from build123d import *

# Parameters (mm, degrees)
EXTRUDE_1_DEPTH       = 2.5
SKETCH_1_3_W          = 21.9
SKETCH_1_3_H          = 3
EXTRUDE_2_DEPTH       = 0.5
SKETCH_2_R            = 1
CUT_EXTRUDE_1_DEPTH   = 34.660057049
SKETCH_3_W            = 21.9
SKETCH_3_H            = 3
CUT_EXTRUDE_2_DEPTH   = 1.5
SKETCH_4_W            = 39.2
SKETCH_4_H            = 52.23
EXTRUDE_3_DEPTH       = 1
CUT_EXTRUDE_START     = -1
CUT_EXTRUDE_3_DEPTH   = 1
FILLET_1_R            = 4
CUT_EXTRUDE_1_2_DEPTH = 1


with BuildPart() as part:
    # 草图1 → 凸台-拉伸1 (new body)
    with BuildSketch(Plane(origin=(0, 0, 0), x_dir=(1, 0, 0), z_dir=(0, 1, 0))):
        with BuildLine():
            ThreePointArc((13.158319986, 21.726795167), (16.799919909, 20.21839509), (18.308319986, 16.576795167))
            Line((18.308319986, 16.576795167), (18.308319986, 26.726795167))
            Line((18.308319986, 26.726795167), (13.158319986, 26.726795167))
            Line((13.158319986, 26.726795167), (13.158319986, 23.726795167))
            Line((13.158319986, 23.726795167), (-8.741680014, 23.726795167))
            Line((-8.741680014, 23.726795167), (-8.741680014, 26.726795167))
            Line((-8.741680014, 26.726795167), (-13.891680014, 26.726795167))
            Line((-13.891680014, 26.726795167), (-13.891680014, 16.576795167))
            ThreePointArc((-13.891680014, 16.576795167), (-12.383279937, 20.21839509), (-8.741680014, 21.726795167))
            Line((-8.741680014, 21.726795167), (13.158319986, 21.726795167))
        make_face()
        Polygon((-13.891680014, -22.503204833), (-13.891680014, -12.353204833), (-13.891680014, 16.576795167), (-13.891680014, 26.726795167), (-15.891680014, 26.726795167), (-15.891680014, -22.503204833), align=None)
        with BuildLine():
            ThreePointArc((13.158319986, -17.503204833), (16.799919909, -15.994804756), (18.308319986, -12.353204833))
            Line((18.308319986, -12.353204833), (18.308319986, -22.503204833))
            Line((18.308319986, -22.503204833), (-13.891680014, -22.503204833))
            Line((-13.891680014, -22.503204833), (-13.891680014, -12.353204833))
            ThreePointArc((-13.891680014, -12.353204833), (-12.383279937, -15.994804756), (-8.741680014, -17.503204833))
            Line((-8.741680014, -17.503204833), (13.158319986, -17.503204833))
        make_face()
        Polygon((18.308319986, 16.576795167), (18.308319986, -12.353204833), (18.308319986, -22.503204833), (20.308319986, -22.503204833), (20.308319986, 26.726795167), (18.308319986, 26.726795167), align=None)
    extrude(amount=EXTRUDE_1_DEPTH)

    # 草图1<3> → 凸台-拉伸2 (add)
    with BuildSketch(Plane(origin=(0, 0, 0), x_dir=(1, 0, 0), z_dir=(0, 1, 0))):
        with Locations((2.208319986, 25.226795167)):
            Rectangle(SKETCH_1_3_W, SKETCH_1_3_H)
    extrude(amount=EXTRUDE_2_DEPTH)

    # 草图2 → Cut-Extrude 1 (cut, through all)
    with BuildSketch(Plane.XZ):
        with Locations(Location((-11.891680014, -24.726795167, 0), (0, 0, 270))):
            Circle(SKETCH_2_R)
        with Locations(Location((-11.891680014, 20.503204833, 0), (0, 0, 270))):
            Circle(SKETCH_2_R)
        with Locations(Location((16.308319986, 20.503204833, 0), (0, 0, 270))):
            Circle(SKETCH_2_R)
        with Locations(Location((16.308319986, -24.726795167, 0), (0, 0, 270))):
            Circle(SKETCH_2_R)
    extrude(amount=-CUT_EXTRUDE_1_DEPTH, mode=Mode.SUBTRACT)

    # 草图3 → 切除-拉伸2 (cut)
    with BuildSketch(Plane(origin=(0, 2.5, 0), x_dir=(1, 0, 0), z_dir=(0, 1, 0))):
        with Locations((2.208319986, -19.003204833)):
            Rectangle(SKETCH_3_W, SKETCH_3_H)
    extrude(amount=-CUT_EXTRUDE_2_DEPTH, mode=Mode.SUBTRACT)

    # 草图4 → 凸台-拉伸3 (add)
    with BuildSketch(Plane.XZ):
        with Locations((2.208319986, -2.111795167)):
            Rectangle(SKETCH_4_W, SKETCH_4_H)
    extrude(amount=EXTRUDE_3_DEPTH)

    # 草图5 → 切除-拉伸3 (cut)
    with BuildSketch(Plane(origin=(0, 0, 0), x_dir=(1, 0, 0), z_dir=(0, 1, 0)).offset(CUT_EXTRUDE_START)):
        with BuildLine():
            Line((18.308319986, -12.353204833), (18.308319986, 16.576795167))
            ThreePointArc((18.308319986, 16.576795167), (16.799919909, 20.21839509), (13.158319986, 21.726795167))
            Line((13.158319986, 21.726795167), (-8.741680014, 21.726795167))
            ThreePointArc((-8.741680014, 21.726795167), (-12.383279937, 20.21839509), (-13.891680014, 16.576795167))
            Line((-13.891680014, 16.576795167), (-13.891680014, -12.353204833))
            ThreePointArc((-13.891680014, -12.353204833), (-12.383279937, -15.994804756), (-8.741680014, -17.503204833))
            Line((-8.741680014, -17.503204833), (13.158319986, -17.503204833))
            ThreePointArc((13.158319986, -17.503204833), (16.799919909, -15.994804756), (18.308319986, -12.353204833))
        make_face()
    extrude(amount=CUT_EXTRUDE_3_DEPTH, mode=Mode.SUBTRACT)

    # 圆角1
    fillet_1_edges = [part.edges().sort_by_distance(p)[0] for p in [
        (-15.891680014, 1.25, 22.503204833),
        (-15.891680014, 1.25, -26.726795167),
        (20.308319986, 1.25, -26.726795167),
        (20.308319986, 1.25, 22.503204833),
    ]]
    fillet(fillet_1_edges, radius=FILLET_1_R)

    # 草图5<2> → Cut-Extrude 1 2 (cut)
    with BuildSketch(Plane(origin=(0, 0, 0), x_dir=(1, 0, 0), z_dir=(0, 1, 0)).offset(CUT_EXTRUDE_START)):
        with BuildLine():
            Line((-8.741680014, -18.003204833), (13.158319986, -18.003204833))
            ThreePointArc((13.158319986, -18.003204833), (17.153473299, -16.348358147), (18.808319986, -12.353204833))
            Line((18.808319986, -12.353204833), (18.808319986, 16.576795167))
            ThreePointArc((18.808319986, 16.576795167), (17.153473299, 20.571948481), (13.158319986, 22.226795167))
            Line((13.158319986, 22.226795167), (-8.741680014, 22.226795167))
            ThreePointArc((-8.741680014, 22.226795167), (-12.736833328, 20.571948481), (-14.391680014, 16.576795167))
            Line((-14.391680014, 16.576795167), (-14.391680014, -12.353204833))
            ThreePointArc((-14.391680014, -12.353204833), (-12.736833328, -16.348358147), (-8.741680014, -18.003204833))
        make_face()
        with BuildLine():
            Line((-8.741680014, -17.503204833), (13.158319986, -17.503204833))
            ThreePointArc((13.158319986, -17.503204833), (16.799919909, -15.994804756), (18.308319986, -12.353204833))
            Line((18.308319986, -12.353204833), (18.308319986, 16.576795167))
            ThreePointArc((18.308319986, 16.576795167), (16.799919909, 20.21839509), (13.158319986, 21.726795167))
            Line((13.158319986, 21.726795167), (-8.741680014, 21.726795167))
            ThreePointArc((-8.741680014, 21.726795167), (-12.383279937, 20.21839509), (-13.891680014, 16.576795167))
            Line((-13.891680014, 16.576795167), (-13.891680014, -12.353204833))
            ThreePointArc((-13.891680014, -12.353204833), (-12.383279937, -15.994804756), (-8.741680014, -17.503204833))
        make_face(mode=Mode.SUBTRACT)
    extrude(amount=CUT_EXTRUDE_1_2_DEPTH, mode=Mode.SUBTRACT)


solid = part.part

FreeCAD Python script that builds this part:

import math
import FreeCAD as App
import Part
import Sketcher

V = App.Vector
Q = App.Units.Quantity


def edges_at(feature, points):
    """Names of the edges that pass closest to the given points."""
    edges = feature.Shape.Edges
    near = lambda p: min(range(len(edges)), key=lambda i: edges[i].distToShape(Part.Vertex(*p))[0])
    return sorted({f"Edge{near(p) + 1}" for p in points})

doc = App.newDocument("Part")
body = doc.addObject("PartDesign::Body", "Body")

# Sketch on XZ plane
sketch1 = body.newObject("Sketcher::SketchObject", "Sketch")
sketch1.AttachmentSupport = (doc.getObject("XZ_Plane"), [""])
sketch1.MapMode = "FlatFace"
sketch1.addGeometry([
    Part.LineSegment(V(13.2, -26.7, 0), V(13.2, -23.7, 0)),  # 0
    Part.LineSegment(V(13.2, -23.7, 0), V(-8.7, -23.7, 0)),  # 1
    Part.LineSegment(V(-8.7, -23.7, 0), V(-8.7, -26.7, 0)),  # 2
    Part.LineSegment(V(-8.7, -26.7, 0), V(-15.9, -26.7, 0)),  # 3
    Part.LineSegment(V(-15.9, -26.7, 0), V(-15.9, 22.5, 0)),  # 4
    Part.LineSegment(V(-15.9, 22.5, 0), V(20.3, 22.5, 0)),  # 5
    Part.LineSegment(V(20.3, 22.5, 0), V(20.3, -26.7, 0)),  # 6
    Part.LineSegment(V(20.3, -26.7, 0), V(13.2, -26.7, 0)),  # 7
    Part.ArcOfCircle(Part.Circle(V(13.2, -16.6, 0), V(0, 0, 1), 5.2), math.radians(-90), math.radians(0)),  # 8
    Part.LineSegment(V(18.3, -16.6, 0), V(18.3, 12.4, 0)),  # 9
    Part.ArcOfCircle(Part.Circle(V(13.2, 12.4, 0), V(0, 0, 1), 5.2), math.radians(0), math.radians(90)),  # 10
    Part.LineSegment(V(13.2, 17.5, 0), V(-8.7, 17.5, 0)),  # 11
    Part.ArcOfCircle(Part.Circle(V(-8.7, 12.4, 0), V(0, 0, 1), 5.2), math.radians(90), math.radians(180)),  # 12
    Part.LineSegment(V(-13.9, 12.4, 0), V(-13.9, -16.6, 0)),  # 13
    Part.ArcOfCircle(Part.Circle(V(-8.7, -16.6, 0), V(0, 0, 1), 5.2), math.radians(180), math.radians(270)),  # 14
    Part.LineSegment(V(-8.7, -21.7, 0), V(13.2, -21.7, 0)),  # 15
], False)
sketch1.addConstraint([
    Sketcher.Constraint("Coincident", 0, 2, 1, 1),
    Sketcher.Constraint("Coincident", 1, 2, 2, 1),
    Sketcher.Constraint("Coincident", 2, 2, 3, 1),
    Sketcher.Constraint("Coincident", 3, 2, 4, 1),
    Sketcher.Constraint("Coincident", 4, 2, 5, 1),
    Sketcher.Constraint("Coincident", 5, 2, 6, 1),
    Sketcher.Constraint("Coincident", 6, 2, 7, 1),
    Sketcher.Constraint("Coincident", 7, 2, 0, 1),
    Sketcher.Constraint("Tangent", 8, 2, 9, 1),
    Sketcher.Constraint("Tangent", 9, 2, 10, 1),
    Sketcher.Constraint("Tangent", 10, 2, 11, 1),
    Sketcher.Constraint("Tangent", 11, 2, 12, 1),
    Sketcher.Constraint("Tangent", 12, 2, 13, 1),
    Sketcher.Constraint("Tangent", 13, 2, 14, 1),
    Sketcher.Constraint("Tangent", 14, 2, 15, 1),
    Sketcher.Constraint("Tangent", 15, 2, 8, 1),
    Sketcher.Constraint("Vertical", 0),
    Sketcher.Constraint("Horizontal", 1),
    Sketcher.Constraint("Vertical", 2),
    Sketcher.Constraint("Horizontal", 3),
    Sketcher.Constraint("Vertical", 4),
    Sketcher.Constraint("Horizontal", 5),
    Sketcher.Constraint("Vertical", 6),
    Sketcher.Constraint("Horizontal", 7),
    Sketcher.Constraint("Vertical", 9),
    Sketcher.Constraint("Horizontal", 11),
    Sketcher.Constraint("Vertical", 13),
    Sketcher.Constraint("Horizontal", 15),
    Sketcher.Constraint("Equal", 8, 10),
    Sketcher.Constraint("Equal", 10, 12),
    Sketcher.Constraint("Equal", 12, 14),
    Sketcher.Constraint("Horizontal", 3, 2, 6, 2),
    Sketcher.Constraint("Vertical", 10, 3, 0, 2),
    Sketcher.Constraint("Vertical", 14, 3, 1, 2),
    Sketcher.Constraint("Equal", 3, 7),
    Sketcher.Constraint("DistanceY", 0, 1, 0, 2, Q("3 mm")),
    Sketcher.Constraint("Radius", 8, Q("5.15 mm")),
    Sketcher.Constraint("DistanceX", 1, 2, 1, 1, Q("21.9 mm")),
    Sketcher.Constraint("DistanceX", 5, 1, 5, 2, Q("36.2 mm")),
    Sketcher.Constraint("DistanceY", 10, 2, 5, 2, Q("5 mm")),
    Sketcher.Constraint("DistanceY", 1, 2, 14, 2, Q("2 mm")),
    Sketcher.Constraint("DistanceY", 4, 1, 4, 2, Q("49.23 mm")),
    Sketcher.Constraint("DistanceX", -1, 1, 8, 3, Q("13.15832 mm")),
    Sketcher.Constraint("DistanceY", 8, 3, -1, 1, Q("16.576795 mm")),
])
pad1 = body.newObject("PartDesign::Pad", "Pad")
pad1.Profile = sketch1
pad1.Length = 2.5
pad1.Reversed = True

# Sketch on XZ plane
sketch2 = body.newObject("Sketcher::SketchObject", "Sketch001")
sketch2.AttachmentSupport = (doc.getObject("XZ_Plane"), [""])
sketch2.MapMode = "FlatFace"
sketch2.addGeometry([
    Part.LineSegment(V(-8.7, -26.7, 0), V(-8.7, -23.7, 0)),
    Part.LineSegment(V(-8.7, -23.7, 0), V(13.2, -23.7, 0)),
    Part.LineSegment(V(13.2, -23.7, 0), V(13.2, -26.7, 0)),
    Part.LineSegment(V(13.2, -26.7, 0), V(-8.7, -26.7, 0)),
], False)
sketch2.addConstraint([
    Sketcher.Constraint("Coincident", 0, 2, 1, 1),
    Sketcher.Constraint("Coincident", 1, 2, 2, 1),
    Sketcher.Constraint("Coincident", 2, 2, 3, 1),
    Sketcher.Constraint("Coincident", 3, 2, 0, 1),
    Sketcher.Constraint("Vertical", 0),
    Sketcher.Constraint("Horizontal", 1),
    Sketcher.Constraint("Vertical", 2),
    Sketcher.Constraint("Horizontal", 3),
    Sketcher.Constraint("DistanceY", 0, 1, 0, 2, Q("3 mm")),
    Sketcher.Constraint("DistanceX", 1, 1, 1, 2, Q("21.9 mm")),
    Sketcher.Constraint("DistanceX", 0, 2, -1, 1, Q("8.74168 mm")),
    Sketcher.Constraint("DistanceY", 0, 2, -1, 1, Q("23.726795 mm")),
])
pad2 = body.newObject("PartDesign::Pad", "Pad001")
pad2.Profile = sketch2
pad2.Length = 0.5
pad2.Reversed = True

# Sketch on XZ plane
sketch3 = body.newObject("Sketcher::SketchObject", "Sketch002")
sketch3.AttachmentSupport = (doc.getObject("XZ_Plane"), [""])
sketch3.MapMode = "FlatFace"
sketch3.addGeometry([
    Part.Circle(V(-11.9, -24.7, 0), V(0, 0, 1), 1),
    Part.Circle(V(-11.9, 20.5, 0), V(0, 0, 1), 1),
    Part.Circle(V(16.3, 20.5, 0), V(0, 0, 1), 1),
    Part.Circle(V(16.3, -24.7, 0), V(0, 0, 1), 1),
], False)
sketch3.addConstraint([
    Sketcher.Constraint("Equal", 0, 1),
    Sketcher.Constraint("Equal", 1, 2),
    Sketcher.Constraint("Equal", 2, 3),
    Sketcher.Constraint("Horizontal", 1, 3, 2, 3),
    Sketcher.Constraint("Horizontal", 0, 3, 3, 3),
    Sketcher.Constraint("Vertical", 0, 3, 1, 3),
    Sketcher.Constraint("Vertical", 2, 3, 3, 3),
    Sketcher.Constraint("Diameter", 0, Q("2 mm")),
    Sketcher.Constraint("DistanceX", 1, 3, 2, 3, Q("28.2 mm")),
    Sketcher.Constraint("DistanceY", 0, 3, 1, 3, Q("45.23 mm")),
    Sketcher.Constraint("DistanceX", 0, 3, -1, 1, Q("11.89168 mm")),
    Sketcher.Constraint("DistanceY", 0, 3, -1, 1, Q("24.726795 mm")),
])
pocket1 = body.newObject("PartDesign::Pocket", "Pocket")
pocket1.Profile = sketch3
pocket1.Type = "ThroughAll"

# Sketch on XZ plane
sketch4 = body.newObject("Sketcher::SketchObject", "Sketch003")
sketch4.AttachmentSupport = (doc.getObject("XZ_Plane"), [""])
sketch4.MapMode = "FlatFace"
sketch4.AttachmentOffset = App.Placement(V(0, 0, -2.5), App.Rotation())
sketch4.addGeometry([
    Part.LineSegment(V(-8.7, 17.5, 0), V(-8.7, 20.5, 0)),
    Part.LineSegment(V(-8.7, 20.5, 0), V(13.2, 20.5, 0)),
    Part.LineSegment(V(13.2, 20.5, 0), V(13.2, 17.5, 0)),
    Part.LineSegment(V(13.2, 17.5, 0), V(-8.7, 17.5, 0)),
], False)
sketch4.addConstraint([
    Sketcher.Constraint("Coincident", 0, 2, 1, 1),
    Sketcher.Constraint("Coincident", 1, 2, 2, 1),
    Sketcher.Constraint("Coincident", 2, 2, 3, 1),
    Sketcher.Constraint("Coincident", 3, 2, 0, 1),
    Sketcher.Constraint("Vertical", 0),
    Sketcher.Constraint("Horizontal", 1),
    Sketcher.Constraint("Vertical", 2),
    Sketcher.Constraint("Horizontal", 3),
    Sketcher.Constraint("DistanceY", 0, 1, 0, 2, Q("3 mm")),
    Sketcher.Constraint("DistanceX", 1, 1, 1, 2, Q("21.9 mm")),
    Sketcher.Constraint("DistanceX", 0, 2, -1, 1, Q("8.74168 mm")),
    Sketcher.Constraint("DistanceY", -1, 1, 0, 2, Q("20.503205 mm")),
])
pocket2 = body.newObject("PartDesign::Pocket", "Pocket001")
pocket2.Profile = sketch4
pocket2.Length = 1.5
pocket2.Reversed = True

# Sketch on XZ plane
sketch5 = body.newObject("Sketcher::SketchObject", "Sketch004")
sketch5.AttachmentSupport = (doc.getObject("XZ_Plane"), [""])
sketch5.MapMode = "FlatFace"
sketch5.addGeometry([
    Part.LineSegment(V(-17, 24, 0), V(-17, -28, 0)),
    Part.LineSegment(V(-17, -28, 0), V(22, -28, 0)),
    Part.LineSegment(V(22, -28, 0), V(22, 24, 0)),
    Part.LineSegment(V(22, 24, 0), V(-17, 24, 0)),
], False)
sketch5.addConstraint([
    Sketcher.Constraint("Coincident", 0, 2, 1, 1),
    Sketcher.Constraint("Coincident", 1, 2, 2, 1),
    Sketcher.Constraint("Coincident", 2, 2, 3, 1),
    Sketcher.Constraint("Coincident", 3, 2, 0, 1),
    Sketcher.Constraint("Vertical", 0),
    Sketcher.Constraint("Horizontal", 1),
    Sketcher.Constraint("Vertical", 2),
    Sketcher.Constraint("Horizontal", 3),
    Sketcher.Constraint("DistanceX", 1, 1, 1, 2, Q("39.2 mm")),
    Sketcher.Constraint("DistanceY", 0, 2, 0, 1, Q("52.23 mm")),
    Sketcher.Constraint("DistanceX", 0, 2, -1, 1, Q("17.39168 mm")),
    Sketcher.Constraint("DistanceY", 0, 2, -1, 1, Q("28.226795 mm")),
])
pad3 = body.newObject("PartDesign::Pad", "Pad002")
pad3.Profile = sketch5
pad3.Length = 1

# Sketch on XZ plane
sketch6 = body.newObject("Sketcher::SketchObject", "Sketch005")
sketch6.AttachmentSupport = (doc.getObject("XZ_Plane"), [""])
sketch6.MapMode = "FlatFace"
sketch6.AttachmentOffset = App.Placement(V(0, 0, 1), App.Rotation())
sketch6.addGeometry([
    Part.LineSegment(V(18, 12, 0), V(18, -17, 0)),  # 0
    Part.ArcOfCircle(Part.Circle(V(13, -17, 0), V(0, 0, 1), 5), math.radians(-90), math.radians(0)),  # 1
    Part.LineSegment(V(13, -22, 0), V(-9, -22, 0)),  # 2
    Part.ArcOfCircle(Part.Circle(V(-9, -17, 0), V(0, 0, 1), 5), math.radians(180), math.radians(270)),  # 3
    Part.LineSegment(V(-14, -17, 0), V(-14, 12, 0)),  # 4
    Part.ArcOfCircle(Part.Circle(V(-9, 12, 0), V(0, 0, 1), 5), math.radians(90), math.radians(180)),  # 5
    Part.LineSegment(V(-9, 18, 0), V(13, 18, 0)),  # 6
    Part.ArcOfCircle(Part.Circle(V(13, 12, 0), V(0, 0, 1), 5), math.radians(0), math.radians(90)),  # 7
], False)
sketch6.addConstraint([
    Sketcher.Constraint("Tangent", 0, 2, 1, 2),
    Sketcher.Constraint("Tangent", 1, 1, 2, 1),
    Sketcher.Constraint("Tangent", 2, 2, 3, 2),
    Sketcher.Constraint("Tangent", 3, 1, 4, 1),
    Sketcher.Constraint("Tangent", 4, 2, 5, 2),
    Sketcher.Constraint("Tangent", 5, 1, 6, 1),
    Sketcher.Constraint("Tangent", 6, 2, 7, 2),
    Sketcher.Constraint("Tangent", 7, 1, 0, 1),
    Sketcher.Constraint("Vertical", 0),
    Sketcher.Constraint("Horizontal", 2),
    Sketcher.Constraint("Vertical", 4),
    Sketcher.Constraint("Horizontal", 6),
    Sketcher.Constraint("Equal", 1, 3),
    Sketcher.Constraint("Equal", 3, 5),
    Sketcher.Constraint("Equal", 5, 7),
    Sketcher.Constraint("Radius", 1, Q("5.15 mm")),
    Sketcher.Constraint("DistanceX", 2, 2, 2, 1, Q("21.9 mm")),
    Sketcher.Constraint("DistanceY", 0, 2, 0, 1, Q("28.93 mm")),
    Sketcher.Constraint("DistanceX", -1, 1, 1, 3, Q("13.15832 mm")),
    Sketcher.Constraint("DistanceY", 1, 3, -1, 1, Q("16.576795 mm")),
])
pocket3 = body.newObject("PartDesign::Pocket", "Pocket002")
pocket3.Profile = sketch6
pocket3.Length = 1
doc.recompute()

fillet = body.newObject("PartDesign::Fillet", "Fillet")
fillet.Base = (pocket3, edges_at(pocket3, [
    (-15.892, 1.25, 22.503),
    (-15.892, 1.25, -26.727),
    (20.308, 1.25, -26.727),
    (20.308, 1.25, 22.503),
]))
fillet.Radius = 4

# Sketch on XZ plane
sketch7 = body.newObject("Sketcher::SketchObject", "Sketch006")
sketch7.AttachmentSupport = (doc.getObject("XZ_Plane"), [""])
sketch7.MapMode = "FlatFace"
sketch7.AttachmentOffset = App.Placement(V(0, 0, 1), App.Rotation())
sketch7.addGeometry([
    Part.LineSegment(V(-9, 18, 0), V(13, 18, 0)),  # 0
    Part.ArcOfCircle(Part.Circle(V(13, 12, 0), V(0, 0, 1), 6), math.radians(0), math.radians(90)),  # 1
    Part.LineSegment(V(19, 12, 0), V(19, -17, 0)),  # 2
    Part.ArcOfCircle(Part.Circle(V(13, -17, 0), V(0, 0, 1), 6), math.radians(-90), math.radians(0)),  # 3
    Part.LineSegment(V(13, -22, 0), V(-9, -22, 0)),  # 4
    Part.ArcOfCircle(Part.Circle(V(-9, -17, 0), V(0, 0, 1), 6), math.radians(180), math.radians(270)),  # 5
    Part.LineSegment(V(-14, -17, 0), V(-14, 12, 0)),  # 6
    Part.ArcOfCircle(Part.Circle(V(-9, 12, 0), V(0, 0, 1), 6), math.radians(90), math.radians(180)),  # 7
    Part.LineSegment(V(13, 18, 0), V(-9, 18, 0)),  # 8
    Part.ArcOfCircle(Part.Circle(V(-9, 12, 0), V(0, 0, 1), 5), math.radians(90), math.radians(180)),  # 9
    Part.LineSegment(V(-14, 12, 0), V(-14, -17, 0)),  # 10
    Part.ArcOfCircle(Part.Circle(V(-9, -17, 0), V(0, 0, 1), 5), math.radians(180), math.radians(270)),  # 11
    Part.LineSegment(V(-9, -22, 0), V(13, -22, 0)),  # 12
    Part.ArcOfCircle(Part.Circle(V(13, -17, 0), V(0, 0, 1), 5), math.radians(-90), math.radians(0)),  # 13
    Part.LineSegment(V(18, -17, 0), V(18, 12, 0)),  # 14
    Part.ArcOfCircle(Part.Circle(V(13, 12, 0), V(0, 0, 1), 5), math.radians(0), math.radians(90)),  # 15
], False)
sketch7.addConstraint([
    Sketcher.Constraint("Tangent", 0, 2, 1, 2),
    Sketcher.Constraint("Tangent", 1, 1, 2, 1),
    Sketcher.Constraint("Tangent", 2, 2, 3, 2),
    Sketcher.Constraint("Tangent", 3, 1, 4, 1),
    Sketcher.Constraint("Tangent", 4, 2, 5, 2),
    Sketcher.Constraint("Tangent", 5, 1, 6, 1),
    Sketcher.Constraint("Tangent", 6, 2, 7, 2),
    Sketcher.Constraint("Tangent", 7, 1, 0, 1),
    Sketcher.Constraint("Tangent", 8, 2, 9, 1),
    Sketcher.Constraint("Tangent", 9, 2, 10, 1),
    Sketcher.Constraint("Tangent", 10, 2, 11, 1),
    Sketcher.Constraint("Tangent", 11, 2, 12, 1),
    Sketcher.Constraint("Tangent", 12, 2, 13, 1),
    Sketcher.Constraint("Tangent", 13, 2, 14, 1),
    Sketcher.Constraint("Tangent", 14, 2, 15, 1),
    Sketcher.Constraint("Tangent", 15, 2, 8, 1),
    Sketcher.Constraint("Horizontal", 0),
    Sketcher.Constraint("Vertical", 2),
    Sketcher.Constraint("Horizontal", 4),
    Sketcher.Constraint("Vertical", 6),
    Sketcher.Constraint("Horizontal", 8),
    Sketcher.Constraint("Vertical", 10),
    Sketcher.Constraint("Horizontal", 12),
    Sketcher.Constraint("Vertical", 14),
    Sketcher.Constraint("Coincident", 9, 3, 7, 3),
    Sketcher.Constraint("Coincident", 11, 3, 5, 3),
    Sketcher.Constraint("Coincident", 13, 3, 3, 3),
    Sketcher.Constraint("Equal", 1, 3),
    Sketcher.Constraint("Equal", 3, 5),
    Sketcher.Constraint("Equal", 5, 7),
    Sketcher.Constraint("Equal", 13, 15),
    Sketcher.Constraint("Radius", 1, Q("5.65 mm")),
    Sketcher.Constraint("Radius", 9, Q("5.15 mm")),
    Sketcher.Constraint("DistanceX", 0, 1, 0, 2, Q("21.9 mm")),
    Sketcher.Constraint("DistanceY", 2, 2, 2, 1, Q("28.93 mm")),
    Sketcher.Constraint("DistanceX", -1, 1, 1, 3, Q("13.15832 mm")),
    Sketcher.Constraint("DistanceY", -1, 1, 1, 3, Q("12.353205 mm")),
])
pocket4 = body.newObject("PartDesign::Pocket", "Pocket003")
pocket4.Profile = sketch7
pocket4.Length = 1

doc.recompute()
